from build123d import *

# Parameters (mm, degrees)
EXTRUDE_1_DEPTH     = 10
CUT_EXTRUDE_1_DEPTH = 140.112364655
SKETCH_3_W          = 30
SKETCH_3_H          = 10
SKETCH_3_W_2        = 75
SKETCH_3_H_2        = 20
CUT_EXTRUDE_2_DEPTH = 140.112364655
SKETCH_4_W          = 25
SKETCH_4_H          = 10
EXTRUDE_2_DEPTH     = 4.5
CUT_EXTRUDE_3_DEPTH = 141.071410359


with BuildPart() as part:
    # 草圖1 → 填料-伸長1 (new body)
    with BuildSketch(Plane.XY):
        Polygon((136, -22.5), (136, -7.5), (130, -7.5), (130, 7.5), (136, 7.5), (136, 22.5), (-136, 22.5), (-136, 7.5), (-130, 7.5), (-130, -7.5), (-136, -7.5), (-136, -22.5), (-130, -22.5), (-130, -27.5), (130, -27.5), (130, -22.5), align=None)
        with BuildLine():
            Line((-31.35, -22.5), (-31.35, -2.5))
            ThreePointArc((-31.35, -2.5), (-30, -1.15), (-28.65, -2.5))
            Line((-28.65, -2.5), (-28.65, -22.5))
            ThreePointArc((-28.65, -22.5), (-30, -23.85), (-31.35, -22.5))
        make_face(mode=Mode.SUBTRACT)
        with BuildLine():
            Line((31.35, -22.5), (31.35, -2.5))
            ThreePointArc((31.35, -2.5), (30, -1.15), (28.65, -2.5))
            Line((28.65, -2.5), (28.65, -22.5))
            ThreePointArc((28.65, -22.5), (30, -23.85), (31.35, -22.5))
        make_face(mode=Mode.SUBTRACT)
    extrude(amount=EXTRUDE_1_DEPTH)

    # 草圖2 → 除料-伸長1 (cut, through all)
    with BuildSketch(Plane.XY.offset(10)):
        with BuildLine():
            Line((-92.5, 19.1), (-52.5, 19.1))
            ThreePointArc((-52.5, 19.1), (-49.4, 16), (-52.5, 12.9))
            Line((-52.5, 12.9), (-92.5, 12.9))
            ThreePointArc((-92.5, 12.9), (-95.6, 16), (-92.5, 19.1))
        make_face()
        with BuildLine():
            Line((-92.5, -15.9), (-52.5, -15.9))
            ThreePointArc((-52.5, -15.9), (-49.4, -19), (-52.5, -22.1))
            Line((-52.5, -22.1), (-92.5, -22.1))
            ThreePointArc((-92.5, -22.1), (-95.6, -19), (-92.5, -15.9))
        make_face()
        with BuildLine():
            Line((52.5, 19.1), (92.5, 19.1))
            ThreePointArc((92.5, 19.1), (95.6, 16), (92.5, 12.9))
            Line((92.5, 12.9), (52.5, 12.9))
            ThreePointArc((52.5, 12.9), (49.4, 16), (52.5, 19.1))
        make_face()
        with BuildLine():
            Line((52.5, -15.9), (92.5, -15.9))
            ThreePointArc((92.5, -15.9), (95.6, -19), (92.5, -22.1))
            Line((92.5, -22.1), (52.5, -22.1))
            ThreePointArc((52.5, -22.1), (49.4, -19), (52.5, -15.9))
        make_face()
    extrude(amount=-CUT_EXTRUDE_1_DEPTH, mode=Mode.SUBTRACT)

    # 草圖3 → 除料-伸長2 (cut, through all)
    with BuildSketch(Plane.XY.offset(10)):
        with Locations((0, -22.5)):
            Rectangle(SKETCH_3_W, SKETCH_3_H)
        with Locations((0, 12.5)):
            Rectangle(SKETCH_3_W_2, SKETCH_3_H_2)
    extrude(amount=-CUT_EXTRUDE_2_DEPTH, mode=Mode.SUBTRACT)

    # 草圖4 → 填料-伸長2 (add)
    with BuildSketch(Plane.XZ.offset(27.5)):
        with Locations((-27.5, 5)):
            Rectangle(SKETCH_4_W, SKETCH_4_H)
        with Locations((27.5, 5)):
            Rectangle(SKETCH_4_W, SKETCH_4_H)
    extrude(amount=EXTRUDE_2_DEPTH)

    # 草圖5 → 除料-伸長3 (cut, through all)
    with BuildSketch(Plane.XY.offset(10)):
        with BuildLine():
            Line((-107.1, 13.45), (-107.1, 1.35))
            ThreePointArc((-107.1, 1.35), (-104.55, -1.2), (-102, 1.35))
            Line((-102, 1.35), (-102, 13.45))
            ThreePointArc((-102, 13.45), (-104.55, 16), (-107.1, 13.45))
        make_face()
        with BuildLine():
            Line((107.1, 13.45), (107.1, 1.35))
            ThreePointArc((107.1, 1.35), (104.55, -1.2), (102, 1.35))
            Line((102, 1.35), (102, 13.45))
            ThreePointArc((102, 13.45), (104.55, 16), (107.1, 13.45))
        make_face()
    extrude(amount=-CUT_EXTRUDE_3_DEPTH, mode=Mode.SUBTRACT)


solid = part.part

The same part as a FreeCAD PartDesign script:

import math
import FreeCAD as App
import Part
import Sketcher

V = App.Vector

doc = App.newDocument("Part")
body = doc.addObject("PartDesign::Body", "Body")

sketch1 = doc.addObject("Sketcher::SketchObject", "Sketch")
body.addObject(sketch1)
sketch1.AttachmentSupport = (doc.XY_Plane, [""])
sketch1.MapMode = "FlatFace"
sketch1.addGeometry(Part.LineSegment(V(136, -22.5, 0), V(136, -7.5, 0)), False)
sketch1.addGeometry(Part.LineSegment(V(136, -7.5, 0), V(130, -7.5, 0)), False)
sketch1.addGeometry(Part.LineSegment(V(130, -7.5, 0), V(130, 7.5, 0)), False)
sketch1.addGeometry(Part.LineSegment(V(130, 7.5, 0), V(136, 7.5, 0)), False)
sketch1.addGeometry(Part.LineSegment(V(136, 7.5, 0), V(136, 22.5, 0)), False)
sketch1.addGeometry(Part.LineSegment(V(136, 22.5, 0), V(-136, 22.5, 0)), False)
sketch1.addGeometry(Part.LineSegment(V(-136, 22.5, 0), V(-136, 7.5, 0)), False)
sketch1.addGeometry(Part.LineSegment(V(-136, 7.5, 0), V(-130, 7.5, 0)), False)
sketch1.addGeometry(Part.LineSegment(V(-130, 7.5, 0), V(-130, -7.5, 0)), False)
sketch1.addGeometry(Part.LineSegment(V(-130, -7.5, 0), V(-136, -7.5, 0)), False)
sketch1.addGeometry(Part.LineSegment(V(-136, -7.5, 0), V(-136, -22.5, 0)), False)
sketch1.addGeometry(Part.LineSegment(V(-136, -22.5, 0), V(-130, -22.5, 0)), False)
sketch1.addGeometry(Part.LineSegment(V(-130, -22.5, 0), V(-130, -27.5, 0)), False)
sketch1.addGeometry(Part.LineSegment(V(-130, -27.5, 0), V(130, -27.5, 0)), False)
sketch1.addGeometry(Part.LineSegment(V(130, -27.5, 0), V(130, -22.5, 0)), False)
sketch1.addGeometry(Part.LineSegment(V(130, -22.5, 0), V(136, -22.5, 0)), False)
sketch1.addGeometry(Part.ArcOfCircle(Part.Circle(V(-30, -22.5, 0), V(0, 0, 1), 1.4), math.radians(180), math.radians(360)), False)
sketch1.addGeometry(Part.LineSegment(V(-31.4, -22.5, 0), V(-31.4, -2.5, 0)), False)
sketch1.addGeometry(Part.ArcOfCircle(Part.Circle(V(-30, -2.5, 0), V(0, 0, 1), 1.4), math.radians(0), math.radians(180)), False)
sketch1.addGeometry(Part.LineSegment(V(-28.6, -2.5, 0), V(-28.6, -22.5, 0)), False)
sketch1.addGeometry(Part.LineSegment(V(31.4, -2.5, 0), V(31.4, -22.5, 0)), False)
sketch1.addGeometry(Part.ArcOfCircle(Part.Circle(V(30, -22.5, 0), V(0, 0, 1), 1.4), math.radians(180), math.radians(360)), False)
sketch1.addGeometry(Part.LineSegment(V(28.6, -22.5, 0), V(28.6, -2.5, 0)), False)
sketch1.addGeometry(Part.ArcOfCircle(Part.Circle(V(30, -2.5, 0), V(0, 0, 1), 1.4), math.radians(0), math.radians(180)), False)
sketch1.addConstraint(Sketcher.Constraint("Coincident", 0, 2, 1, 1))
sketch1.addConstraint(Sketcher.Constraint("Coincident", 1, 2, 2, 1))
sketch1.addConstraint(Sketcher.Constraint("Coincident", 2, 2, 3, 1))
sketch1.addConstraint(Sketcher.Constraint("Coincident", 3, 2, 4, 1))
sketch1.addConstraint(Sketcher.Constraint("Coincident", 4, 2, 5, 1))
sketch1.addConstraint(Sketcher.Constraint("Coincident", 5, 2, 6, 1))
sketch1.addConstraint(Sketcher.Constraint("Coincident", 6, 2, 7, 1))
sketch1.addConstraint(Sketcher.Constraint("Coincident", 7, 2, 8, 1))
sketch1.addConstraint(Sketcher.Constraint("Coincident", 8, 2, 9, 1))
sketch1.addConstraint(Sketcher.Constraint("Coincident", 9, 2, 10, 1))
sketch1.addConstraint(Sketcher.Constraint("Coincident", 10, 2, 11, 1))
sketch1.addConstraint(Sketcher.Constraint("Coincident", 11, 2, 12, 1))
sketch1.addConstraint(Sketcher.Constraint("Coincident", 12, 2, 13, 1))
sketch1.addConstraint(Sketcher.Constraint("Coincident", 13, 2, 14, 1))
sketch1.addConstraint(Sketcher.Constraint("Coincident", 14, 2, 15, 1))
sketch1.addConstraint(Sketcher.Constraint("Coincident", 15, 2, 0, 1))
sketch1.addConstraint(Sketcher.Constraint("Tangent", 16, 1, 17, 1))
sketch1.addConstraint(Sketcher.Constraint("Tangent", 17, 2, 18, 2))
sketch1.addConstraint(Sketcher.Constraint("Tangent", 18, 1, 19, 1))
sketch1.addConstraint(Sketcher.Constraint("Tangent", 19, 2, 16, 2))
sketch1.addConstraint(Sketcher.Constraint("Tangent", 20, 2, 21, 2))
sketch1.addConstraint(Sketcher.Constraint("Tangent", 21, 1, 22, 1))
sketch1.addConstraint(Sketcher.Constraint("Tangent", 22, 2, 23, 2))
sketch1.addConstraint(Sketcher.Constraint("Tangent", 23, 1, 20, 1))
sketch1.addConstraint(Sketcher.Constraint("Vertical", 0))
sketch1.addConstraint(Sketcher.Constraint("Horizontal", 1))
sketch1.addConstraint(Sketcher.Constraint("Vertical", 2))
sketch1.addConstraint(Sketcher.Constraint("Horizontal", 3))
sketch1.addConstraint(Sketcher.Constraint("Vertical", 4))
sketch1.addConstraint(Sketcher.Constraint("Horizontal", 5))
sketch1.addConstraint(Sketcher.Constraint("Vertical", 6))
sketch1.addConstraint(Sketcher.Constraint("Horizontal", 7))
sketch1.addConstraint(Sketcher.Constraint("Vertical", 8))
sketch1.addConstraint(Sketcher.Constraint("Horizontal", 9))
sketch1.addConstraint(Sketcher.Constraint("Vertical", 10))
sketch1.addConstraint(Sketcher.Constraint("Horizontal", 11))
sketch1.addConstraint(Sketcher.Constraint("Vertical", 12))
sketch1.addConstraint(Sketcher.Constraint("Horizontal", 13))
sketch1.addConstraint(Sketcher.Constraint("Vertical", 14))
sketch1.addConstraint(Sketcher.Constraint("Horizontal", 15))
sketch1.addConstraint(Sketcher.Constraint("Vertical", 17))
sketch1.addConstraint(Sketcher.Constraint("Vertical", 19))
sketch1.addConstraint(Sketcher.Constraint("Vertical", 20))
sketch1.addConstraint(Sketcher.Constraint("Vertical", 22))
sketch1.addConstraint(Sketcher.Constraint("Equal", 18, 21))
sketch1.addConstraint(Sketcher.Constraint("Symmetric", 0, 2, 6, 2, -1, 1))
sketch1.addConstraint(Sketcher.Constraint("Symmetric", 2, 2, 8, 2, -1, 1))
sketch1.addConstraint(Sketcher.Constraint("Symmetric", 4, 2, 10, 2, -1, 1))
sketch1.addConstraint(Sketcher.Constraint("Symmetric", 16, 3, 21, 3, -2))
sketch1.addConstraint(Sketcher.Constraint("Symmetric", 3, 2, 6, 2, -2))
sketch1.addConstraint(Sketcher.Constraint("Symmetric", 11, 2, 14, 2, -2))
sketch1.addConstraint(Sketcher.Constraint("Horizontal", 18, 3, 23, 3))
sketch1.addConstraint(Sketcher.Constraint("Horizontal", 21, 3, 10, 2))
sketch1.addConstraint(Sketcher.Constraint("Vertical", 8, 2, 11, 2))
sketch1.addConstraint(Sketcher.Constraint("Equal", 0, 2))
sketch1.addConstraint(Sketcher.Constraint("DistanceX", 1, 2, 1, 1, 6.0))
sketch1.addConstraint(Sketcher.Constraint("DistanceX", 5, 2, 5, 1, 272.0))
sketch1.addConstraint(Sketcher.Constraint("DistanceY", 0, 1, 0, 2, 15.0))
sketch1.addConstraint(Sketcher.Constraint("DistanceY", 12, 2, 12, 1, 5.0))
sketch1.addConstraint(Sketcher.Constraint("DistanceY", 17, 1, 17, 2, 20.0))
sketch1.addConstraint(Sketcher.Constraint("Radius", 16, 1.35))
sketch1.addConstraint(Sketcher.Constraint("DistanceX", 16, 3, -1, 1, 30.0))
pad1 = doc.addObject("PartDesign::Pad", "Pad")
body.addObject(pad1)
pad1.Profile = sketch1
pad1.Length = 10

sketch2 = doc.addObject("Sketcher::SketchObject", "Sketch001")
body.addObject(sketch2)
sketch2.AttachmentSupport = (doc.XY_Plane, [""])
sketch2.MapMode = "FlatFace"
sketch2.AttachmentOffset = App.Placement(V(0, 0, 10), App.Rotation())
sketch2.addGeometry(Part.LineSegment(V(-52.5, 19.1, 0), V(-92.5, 19.1, 0)), False)
sketch2.addGeometry(Part.ArcOfCircle(Part.Circle(V(-92.5, 16, 0), V(0, 0, 1), 3.1), math.radians(90), math.radians(270)), False)
sketch2.addGeometry(Part.LineSegment(V(-92.5, 12.9, 0), V(-52.5, 12.9, 0)), False)
sketch2.addGeometry(Part.ArcOfCircle(Part.Circle(V(-52.5, 16, 0), V(0, 0, 1), 3.1), math.radians(-90), math.radians(90)), False)
sketch2.addGeometry(Part.LineSegment(V(-52.5, -15.9, 0), V(-92.5, -15.9, 0)), False)
sketch2.addGeometry(Part.ArcOfCircle(Part.Circle(V(-92.5, -19, 0), V(0, 0, 1), 3.1), math.radians(90), math.radians(270)), False)
sketch2.addGeometry(Part.LineSegment(V(-92.5, -22.1, 0), V(-52.5, -22.1, 0)), False)
sketch2.addGeometry(Part.ArcOfCircle(Part.Circle(V(-52.5, -19, 0), V(0, 0, 1), 3.1), math.radians(-90), math.radians(90)), False)
sketch2.addGeometry(Part.LineSegment(V(92.5, 19.1, 0), V(52.5, 19.1, 0)), False)
sketch2.addGeometry(Part.ArcOfCircle(Part.Circle(V(52.5, 16, 0), V(0, 0, 1), 3.1), math.radians(90), math.radians(270)), False)
sketch2.addGeometry(Part.LineSegment(V(52.5, 12.9, 0), V(92.5, 12.9, 0)), False)
sketch2.addGeometry(Part.ArcOfCircle(Part.Circle(V(92.5, 16, 0), V(0, 0, 1), 3.1), math.radians(-90), math.radians(90)), False)
sketch2.addGeometry(Part.LineSegment(V(92.5, -15.9, 0), V(52.5, -15.9, 0)), False)
sketch2.addGeometry(Part.ArcOfCircle(Part.Circle(V(52.5, -19, 0), V(0, 0, 1), 3.1), math.radians(90), math.radians(270)), False)
sketch2.addGeometry(Part.LineSegment(V(52.5, -22.1, 0), V(92.5, -22.1, 0)), False)
sketch2.addGeometry(Part.ArcOfCircle(Part.Circle(V(92.5, -19, 0), V(0, 0, 1), 3.1), math.radians(-90), math.radians(90)), False)
sketch2.addConstraint(Sketcher.Constraint("Tangent", 0, 2, 1, 1))
sketch2.addConstraint(Sketcher.Constraint("Tangent", 1, 2, 2, 1))
sketch2.addConstraint(Sketcher.Constraint("Tangent", 2, 2, 3, 1))
sketch2.addConstraint(Sketcher.Constraint("Tangent", 3, 2, 0, 1))
sketch2.addConstraint(Sketcher.Constraint("Tangent", 4, 2, 5, 1))
sketch2.addConstraint(Sketcher.Constraint("Tangent", 5, 2, 6, 1))
sketch2.addConstraint(Sketcher.Constraint("Tangent", 6, 2, 7, 1))
sketch2.addConstraint(Sketcher.Constraint("Tangent", 7, 2, 4, 1))
sketch2.addConstraint(Sketcher.Constraint("Tangent", 8, 2, 9, 1))
sketch2.addConstraint(Sketcher.Constraint("Tangent", 9, 2, 10, 1))
sketch2.addConstraint(Sketcher.Constraint("Tangent", 10, 2, 11, 1))
sketch2.addConstraint(Sketcher.Constraint("Tangent", 11, 2, 8, 1))
sketch2.addConstraint(Sketcher.Constraint("Tangent", 12, 2, 13, 1))
sketch2.addConstraint(Sketcher.Constraint("Tangent", 13, 2, 14, 1))
sketch2.addConstraint(Sketcher.Constraint("Tangent", 14, 2, 15, 1))
sketch2.addConstraint(Sketcher.Constraint("Tangent", 15, 2, 12, 1))
sketch2.addConstraint(Sketcher.Constraint("Horizontal", 0))
sketch2.addConstraint(Sketcher.Constraint("Horizontal", 2))
sketch2.addConstraint(Sketcher.Constraint("Horizontal", 4))
sketch2.addConstraint(Sketcher.Constraint("Horizontal", 6))
sketch2.addConstraint(Sketcher.Constraint("Horizontal", 8))
sketch2.addConstraint(Sketcher.Constraint("Horizontal", 10))
sketch2.addConstraint(Sketcher.Constraint("Horizontal", 12))
sketch2.addConstraint(Sketcher.Constraint("Horizontal", 14))
sketch2.addConstraint(Sketcher.Constraint("Equal", 3, 5))
sketch2.addConstraint(Sketcher.Constraint("Equal", 7, 9))
sketch2.addConstraint(Sketcher.Constraint("Equal", 11, 13))
sketch2.addConstraint(Sketcher.Constraint("Symmetric", 3, 3, 9, 3, -2))
sketch2.addConstraint(Sketcher.Constraint("Symmetric", 7, 3, 13, 3, -2))
sketch2.addConstraint(Sketcher.Constraint("Vertical", 1, 3, 5, 3))
sketch2.addConstraint(Sketcher.Constraint("Vertical", 3, 3, 7, 3))
sketch2.addConstraint(Sketcher.Constraint("Vertical", 11, 3, 15, 3))
sketch2.addConstraint(Sketcher.Constraint("Equal", 6, 8))
sketch2.addConstraint(Sketcher.Constraint("Radius", 1, 3.1))
sketch2.addConstraint(Sketcher.Constraint("DistanceX", 0, 2, 0, 1, 40.0))
sketch2.addConstraint(Sketcher.Constraint("DistanceY", -1, 1, 1, 3, 16.0))
sketch2.addConstraint(Sketcher.Constraint("DistanceY", 5, 3, -1, 1, 19.0))
sketch2.addConstraint(Sketcher.Constraint("DistanceX", 3, 3, 9, 3, 105.0))
pocket1 = doc.addObject("PartDesign::Pocket", "Pocket")
body.addObject(pocket1)
pocket1.Profile = sketch2
pocket1.Type = "ThroughAll"

sketch3 = doc.addObject("Sketcher::SketchObject", "Sketch002")
body.addObject(sketch3)
sketch3.AttachmentSupport = (doc.XY_Plane, [""])
sketch3.MapMode = "FlatFace"
sketch3.AttachmentOffset = App.Placement(V(0, 0, 10), App.Rotation())
sketch3.addGeometry(Part.LineSegment(V(-15, -18, 0), V(-15, -28, 0)), False)
sketch3.addGeometry(Part.LineSegment(V(-15, -28, 0), V(15, -28, 0)), False)
sketch3.addGeometry(Part.LineSegment(V(15, -28, 0), V(15, -18, 0)), False)
sketch3.addGeometry(Part.LineSegment(V(15, -18, 0), V(-15, -18, 0)), False)
sketch3.addGeometry(Part.LineSegment(V(-38, 22, 0), V(-38, 2, 0)), False)
sketch3.addGeometry(Part.LineSegment(V(-38, 2, 0), V(38, 2, 0)), False)
sketch3.addGeometry(Part.LineSegment(V(38, 2, 0), V(38, 22, 0)), False)
sketch3.addGeometry(Part.LineSegment(V(38, 22, 0), V(-38, 22, 0)), False)
sketch3.addConstraint(Sketcher.Constraint("Coincident", 0, 2, 1, 1))
sketch3.addConstraint(Sketcher.Constraint("Coincident", 1, 2, 2, 1))
sketch3.addConstraint(Sketcher.Constraint("Coincident", 2, 2, 3, 1))
sketch3.addConstraint(Sketcher.Constraint("Coincident", 3, 2, 0, 1))
sketch3.addConstraint(Sketcher.Constraint("Coincident", 4, 2, 5, 1))
sketch3.addConstraint(Sketcher.Constraint("Coincident", 5, 2, 6, 1))
sketch3.addConstraint(Sketcher.Constraint("Coincident", 6, 2, 7, 1))
sketch3.addConstraint(Sketcher.Constraint("Coincident", 7, 2, 4, 1))
sketch3.addConstraint(Sketcher.Constraint("Vertical", 0))
sketch3.addConstraint(Sketcher.Constraint("Horizontal", 1))
sketch3.addConstraint(Sketcher.Constraint("Vertical", 2))
sketch3.addConstraint(Sketcher.Constraint("Horizontal", 3))
sketch3.addConstraint(Sketcher.Constraint("Vertical", 4))
sketch3.addConstraint(Sketcher.Constraint("Horizontal", 5))
sketch3.addConstraint(Sketcher.Constraint("Vertical", 6))
sketch3.addConstraint(Sketcher.Constraint("Horizontal", 7))
sketch3.addConstraint(Sketcher.Constraint("DistanceX", 1, 1, 1, 2, 30.0))
sketch3.addConstraint(Sketcher.Constraint("DistanceX", 5, 1, 5, 2, 75.0))
sketch3.addConstraint(Sketcher.Constraint("DistanceY", 0, 2, 0, 1, 10.0))
sketch3.addConstraint(Sketcher.Constraint("DistanceY", 4, 2, 4, 1, 20.0))
sketch3.addConstraint(Sketcher.Constraint("DistanceX", 0, 2, -1, 1, 15.0))
sketch3.addConstraint(Sketcher.Constraint("DistanceY", 3, 2, 4, 2, 20.0))
sketch3.addConstraint(Sketcher.Constraint("DistanceY", 0, 2, -1, 1, 27.5))
sketch3.addConstraint(Sketcher.Constraint("DistanceX", 4, 2, -1, 1, 37.5))
pocket2 = doc.addObject("PartDesign::Pocket", "Pocket001")
body.addObject(pocket2)
pocket2.Profile = sketch3
pocket2.Type = "ThroughAll"

sketch4 = doc.addObject("Sketcher::SketchObject", "Sketch003")
body.addObject(sketch4)
sketch4.AttachmentSupport = (doc.XZ_Plane, [""])
sketch4.MapMode = "FlatFace"
sketch4.AttachmentOffset = App.Placement(V(0, 0, 27.5), App.Rotation())
sketch4.addGeometry(Part.LineSegment(V(-40, 10, 0), V(-40, 0, 0)), False)
sketch4.addGeometry(Part.LineSegment(V(-40, 0, 0), V(-15, 0, 0)), False)
sketch4.addGeometry(Part.LineSegment(V(-15, 0, 0), V(-15, 10, 0)), False)
sketch4.addGeometry(Part.LineSegment(V(-15, 10, 0), V(-40, 10, 0)), False)
sketch4.addGeometry(Part.LineSegment(V(15, 10, 0), V(15, 0, 0)), False)
sketch4.addGeometry(Part.LineSegment(V(15, 0, 0), V(40, 0, 0)), False)
sketch4.addGeometry(Part.LineSegment(V(40, 0, 0), V(40, 10, 0)), False)
sketch4.addGeometry(Part.LineSegment(V(40, 10, 0), V(15, 10, 0)), False)
sketch4.addConstraint(Sketcher.Constraint("Coincident", 0, 2, 1, 1))
sketch4.addConstraint(Sketcher.Constraint("Coincident", 1, 2, 2, 1))
sketch4.addConstraint(Sketcher.Constraint("Coincident", 2, 2, 3, 1))
sketch4.addConstraint(Sketcher.Constraint("Coincident", 3, 2, 0, 1))
sketch4.addConstraint(Sketcher.Constraint("Coincident", 4, 2, 5, 1))
sketch4.addConstraint(Sketcher.Constraint("Coincident", 5, 2, 6, 1))
sketch4.addConstraint(Sketcher.Constraint("Coincident", 6, 2, 7, 1))
sketch4.addConstraint(Sketcher.Constraint("Coincident", 7, 2, 4, 1))
sketch4.addConstraint(Sketcher.Constraint("Vertical", 0))
sketch4.addConstraint(Sketcher.Constraint("Horizontal", 1))
sketch4.addConstraint(Sketcher.Constraint("Vertical", 2))
sketch4.addConstraint(Sketcher.Constraint("Horizontal", 3))
sketch4.addConstraint(Sketcher.Constraint("Vertical", 4))
sketch4.addConstraint(Sketcher.Constraint("Horizontal", 5))
sketch4.addConstraint(Sketcher.Constraint("Vertical", 6))
sketch4.addConstraint(Sketcher.Constraint("Horizontal", 7))
sketch4.addConstraint(Sketcher.Constraint("Symmetric", 1, 2, 4, 2, -1, 1))
sketch4.addConstraint(Sketcher.Constraint("Symmetric", 0, 2, 5, 2, -2))
sketch4.addConstraint(Sketcher.Constraint("Horizontal", 3, 2, 6, 2))
sketch4.addConstraint(Sketcher.Constraint("DistanceX", 1, 1, 1, 2, 25.0))
sketch4.addConstraint(Sketcher.Constraint("DistanceY", 0, 2, 0, 1, 10.0))
sketch4.addConstraint(Sketcher.Constraint("DistanceX", 0, 2, -1, 1, 40.0))
pad2 = doc.addObject("PartDesign::Pad", "Pad001")
body.addObject(pad2)
pad2.Profile = sketch4
pad2.Length = 4.5

sketch5 = doc.addObject("Sketcher::SketchObject", "Sketch004")
body.addObject(sketch5)
sketch5.AttachmentSupport = (doc.XY_Plane, [""])
sketch5.MapMode = "FlatFace"
sketch5.AttachmentOffset = App.Placement(V(0, 0, 10), App.Rotation())
sketch5.addGeometry(Part.LineSegment(V(-107.1, 13.4, 0), V(-107.1, 1.4, 0)), False)
sketch5.addGeometry(Part.ArcOfCircle(Part.Circle(V(-104.5, 1.4, 0), V(0, 0, 1), 2.5), math.radians(180), math.radians(360)), False)
sketch5.addGeometry(Part.LineSegment(V(-102, 1.4, 0), V(-102, 13.4, 0)), False)
sketch5.addGeometry(Part.ArcOfCircle(Part.Circle(V(-104.5, 13.4, 0), V(0, 0, 1), 2.5), math.radians(0), math.radians(180)), False)
sketch5.addGeometry(Part.LineSegment(V(107.1, 1.4, 0), V(107.1, 13.4, 0)), False)
sketch5.addGeometry(Part.ArcOfCircle(Part.Circle(V(104.5, 13.4, 0), V(0, 0, 1), 2.5), math.radians(0), math.radians(180)), False)
sketch5.addGeometry(Part.LineSegment(V(102, 13.4, 0), V(102, 1.4, 0)), False)
sketch5.addGeometry(Part.ArcOfCircle(Part.Circle(V(104.5, 1.4, 0), V(0, 0, 1), 2.5), math.radians(180), math.radians(360)), False)
sketch5.addConstraint(Sketcher.Constraint("Tangent", 0, 2, 1, 1))
sketch5.addConstraint(Sketcher.Constraint("Tangent", 1, 2, 2, 1))
sketch5.addConstraint(Sketcher.Constraint("Tangent", 2, 2, 3, 1))
sketch5.addConstraint(Sketcher.Constraint("Tangent", 3, 2, 0, 1))
sketch5.addConstraint(Sketcher.Constraint("Tangent", 4, 2, 5, 1))
sketch5.addConstraint(Sketcher.Constraint("Tangent", 5, 2, 6, 1))
sketch5.addConstraint(Sketcher.Constraint("Tangent", 6, 2, 7, 1))
sketch5.addConstraint(Sketcher.Constraint("Tangent", 7, 2, 4, 1))
sketch5.addConstraint(Sketcher.Constraint("Vertical", 0))
sketch5.addConstraint(Sketcher.Constraint("Vertical", 2))
sketch5.addConstraint(Sketcher.Constraint("Vertical", 4))
sketch5.addConstraint(Sketcher.Constraint("Vertical", 6))
sketch5.addConstraint(Sketcher.Constraint("Equal", 3, 5))
sketch5.addConstraint(Sketcher.Constraint("Symmetric", 3, 3, 5, 3, -2))
sketch5.addConstraint(Sketcher.Constraint("Horizontal", 1, 3, 7, 3))
sketch5.addConstraint(Sketcher.Constraint("Radius", 1, 2.55))
sketch5.addConstraint(Sketcher.Constraint("DistanceY", 0, 2, 0, 1, 12.1))
sketch5.addConstraint(Sketcher.Constraint("DistanceX", 1, 2, -1, 1, 102.0))
sketch5.addConstraint(Sketcher.Constraint("DistanceY", -1, 1, 1, 3, 1.35))
pocket3 = doc.addObject("PartDesign::Pocket", "Pocket002")
body.addObject(pocket3)
pocket3.Profile = sketch5
pocket3.Type = "ThroughAll"

doc.recompute()
